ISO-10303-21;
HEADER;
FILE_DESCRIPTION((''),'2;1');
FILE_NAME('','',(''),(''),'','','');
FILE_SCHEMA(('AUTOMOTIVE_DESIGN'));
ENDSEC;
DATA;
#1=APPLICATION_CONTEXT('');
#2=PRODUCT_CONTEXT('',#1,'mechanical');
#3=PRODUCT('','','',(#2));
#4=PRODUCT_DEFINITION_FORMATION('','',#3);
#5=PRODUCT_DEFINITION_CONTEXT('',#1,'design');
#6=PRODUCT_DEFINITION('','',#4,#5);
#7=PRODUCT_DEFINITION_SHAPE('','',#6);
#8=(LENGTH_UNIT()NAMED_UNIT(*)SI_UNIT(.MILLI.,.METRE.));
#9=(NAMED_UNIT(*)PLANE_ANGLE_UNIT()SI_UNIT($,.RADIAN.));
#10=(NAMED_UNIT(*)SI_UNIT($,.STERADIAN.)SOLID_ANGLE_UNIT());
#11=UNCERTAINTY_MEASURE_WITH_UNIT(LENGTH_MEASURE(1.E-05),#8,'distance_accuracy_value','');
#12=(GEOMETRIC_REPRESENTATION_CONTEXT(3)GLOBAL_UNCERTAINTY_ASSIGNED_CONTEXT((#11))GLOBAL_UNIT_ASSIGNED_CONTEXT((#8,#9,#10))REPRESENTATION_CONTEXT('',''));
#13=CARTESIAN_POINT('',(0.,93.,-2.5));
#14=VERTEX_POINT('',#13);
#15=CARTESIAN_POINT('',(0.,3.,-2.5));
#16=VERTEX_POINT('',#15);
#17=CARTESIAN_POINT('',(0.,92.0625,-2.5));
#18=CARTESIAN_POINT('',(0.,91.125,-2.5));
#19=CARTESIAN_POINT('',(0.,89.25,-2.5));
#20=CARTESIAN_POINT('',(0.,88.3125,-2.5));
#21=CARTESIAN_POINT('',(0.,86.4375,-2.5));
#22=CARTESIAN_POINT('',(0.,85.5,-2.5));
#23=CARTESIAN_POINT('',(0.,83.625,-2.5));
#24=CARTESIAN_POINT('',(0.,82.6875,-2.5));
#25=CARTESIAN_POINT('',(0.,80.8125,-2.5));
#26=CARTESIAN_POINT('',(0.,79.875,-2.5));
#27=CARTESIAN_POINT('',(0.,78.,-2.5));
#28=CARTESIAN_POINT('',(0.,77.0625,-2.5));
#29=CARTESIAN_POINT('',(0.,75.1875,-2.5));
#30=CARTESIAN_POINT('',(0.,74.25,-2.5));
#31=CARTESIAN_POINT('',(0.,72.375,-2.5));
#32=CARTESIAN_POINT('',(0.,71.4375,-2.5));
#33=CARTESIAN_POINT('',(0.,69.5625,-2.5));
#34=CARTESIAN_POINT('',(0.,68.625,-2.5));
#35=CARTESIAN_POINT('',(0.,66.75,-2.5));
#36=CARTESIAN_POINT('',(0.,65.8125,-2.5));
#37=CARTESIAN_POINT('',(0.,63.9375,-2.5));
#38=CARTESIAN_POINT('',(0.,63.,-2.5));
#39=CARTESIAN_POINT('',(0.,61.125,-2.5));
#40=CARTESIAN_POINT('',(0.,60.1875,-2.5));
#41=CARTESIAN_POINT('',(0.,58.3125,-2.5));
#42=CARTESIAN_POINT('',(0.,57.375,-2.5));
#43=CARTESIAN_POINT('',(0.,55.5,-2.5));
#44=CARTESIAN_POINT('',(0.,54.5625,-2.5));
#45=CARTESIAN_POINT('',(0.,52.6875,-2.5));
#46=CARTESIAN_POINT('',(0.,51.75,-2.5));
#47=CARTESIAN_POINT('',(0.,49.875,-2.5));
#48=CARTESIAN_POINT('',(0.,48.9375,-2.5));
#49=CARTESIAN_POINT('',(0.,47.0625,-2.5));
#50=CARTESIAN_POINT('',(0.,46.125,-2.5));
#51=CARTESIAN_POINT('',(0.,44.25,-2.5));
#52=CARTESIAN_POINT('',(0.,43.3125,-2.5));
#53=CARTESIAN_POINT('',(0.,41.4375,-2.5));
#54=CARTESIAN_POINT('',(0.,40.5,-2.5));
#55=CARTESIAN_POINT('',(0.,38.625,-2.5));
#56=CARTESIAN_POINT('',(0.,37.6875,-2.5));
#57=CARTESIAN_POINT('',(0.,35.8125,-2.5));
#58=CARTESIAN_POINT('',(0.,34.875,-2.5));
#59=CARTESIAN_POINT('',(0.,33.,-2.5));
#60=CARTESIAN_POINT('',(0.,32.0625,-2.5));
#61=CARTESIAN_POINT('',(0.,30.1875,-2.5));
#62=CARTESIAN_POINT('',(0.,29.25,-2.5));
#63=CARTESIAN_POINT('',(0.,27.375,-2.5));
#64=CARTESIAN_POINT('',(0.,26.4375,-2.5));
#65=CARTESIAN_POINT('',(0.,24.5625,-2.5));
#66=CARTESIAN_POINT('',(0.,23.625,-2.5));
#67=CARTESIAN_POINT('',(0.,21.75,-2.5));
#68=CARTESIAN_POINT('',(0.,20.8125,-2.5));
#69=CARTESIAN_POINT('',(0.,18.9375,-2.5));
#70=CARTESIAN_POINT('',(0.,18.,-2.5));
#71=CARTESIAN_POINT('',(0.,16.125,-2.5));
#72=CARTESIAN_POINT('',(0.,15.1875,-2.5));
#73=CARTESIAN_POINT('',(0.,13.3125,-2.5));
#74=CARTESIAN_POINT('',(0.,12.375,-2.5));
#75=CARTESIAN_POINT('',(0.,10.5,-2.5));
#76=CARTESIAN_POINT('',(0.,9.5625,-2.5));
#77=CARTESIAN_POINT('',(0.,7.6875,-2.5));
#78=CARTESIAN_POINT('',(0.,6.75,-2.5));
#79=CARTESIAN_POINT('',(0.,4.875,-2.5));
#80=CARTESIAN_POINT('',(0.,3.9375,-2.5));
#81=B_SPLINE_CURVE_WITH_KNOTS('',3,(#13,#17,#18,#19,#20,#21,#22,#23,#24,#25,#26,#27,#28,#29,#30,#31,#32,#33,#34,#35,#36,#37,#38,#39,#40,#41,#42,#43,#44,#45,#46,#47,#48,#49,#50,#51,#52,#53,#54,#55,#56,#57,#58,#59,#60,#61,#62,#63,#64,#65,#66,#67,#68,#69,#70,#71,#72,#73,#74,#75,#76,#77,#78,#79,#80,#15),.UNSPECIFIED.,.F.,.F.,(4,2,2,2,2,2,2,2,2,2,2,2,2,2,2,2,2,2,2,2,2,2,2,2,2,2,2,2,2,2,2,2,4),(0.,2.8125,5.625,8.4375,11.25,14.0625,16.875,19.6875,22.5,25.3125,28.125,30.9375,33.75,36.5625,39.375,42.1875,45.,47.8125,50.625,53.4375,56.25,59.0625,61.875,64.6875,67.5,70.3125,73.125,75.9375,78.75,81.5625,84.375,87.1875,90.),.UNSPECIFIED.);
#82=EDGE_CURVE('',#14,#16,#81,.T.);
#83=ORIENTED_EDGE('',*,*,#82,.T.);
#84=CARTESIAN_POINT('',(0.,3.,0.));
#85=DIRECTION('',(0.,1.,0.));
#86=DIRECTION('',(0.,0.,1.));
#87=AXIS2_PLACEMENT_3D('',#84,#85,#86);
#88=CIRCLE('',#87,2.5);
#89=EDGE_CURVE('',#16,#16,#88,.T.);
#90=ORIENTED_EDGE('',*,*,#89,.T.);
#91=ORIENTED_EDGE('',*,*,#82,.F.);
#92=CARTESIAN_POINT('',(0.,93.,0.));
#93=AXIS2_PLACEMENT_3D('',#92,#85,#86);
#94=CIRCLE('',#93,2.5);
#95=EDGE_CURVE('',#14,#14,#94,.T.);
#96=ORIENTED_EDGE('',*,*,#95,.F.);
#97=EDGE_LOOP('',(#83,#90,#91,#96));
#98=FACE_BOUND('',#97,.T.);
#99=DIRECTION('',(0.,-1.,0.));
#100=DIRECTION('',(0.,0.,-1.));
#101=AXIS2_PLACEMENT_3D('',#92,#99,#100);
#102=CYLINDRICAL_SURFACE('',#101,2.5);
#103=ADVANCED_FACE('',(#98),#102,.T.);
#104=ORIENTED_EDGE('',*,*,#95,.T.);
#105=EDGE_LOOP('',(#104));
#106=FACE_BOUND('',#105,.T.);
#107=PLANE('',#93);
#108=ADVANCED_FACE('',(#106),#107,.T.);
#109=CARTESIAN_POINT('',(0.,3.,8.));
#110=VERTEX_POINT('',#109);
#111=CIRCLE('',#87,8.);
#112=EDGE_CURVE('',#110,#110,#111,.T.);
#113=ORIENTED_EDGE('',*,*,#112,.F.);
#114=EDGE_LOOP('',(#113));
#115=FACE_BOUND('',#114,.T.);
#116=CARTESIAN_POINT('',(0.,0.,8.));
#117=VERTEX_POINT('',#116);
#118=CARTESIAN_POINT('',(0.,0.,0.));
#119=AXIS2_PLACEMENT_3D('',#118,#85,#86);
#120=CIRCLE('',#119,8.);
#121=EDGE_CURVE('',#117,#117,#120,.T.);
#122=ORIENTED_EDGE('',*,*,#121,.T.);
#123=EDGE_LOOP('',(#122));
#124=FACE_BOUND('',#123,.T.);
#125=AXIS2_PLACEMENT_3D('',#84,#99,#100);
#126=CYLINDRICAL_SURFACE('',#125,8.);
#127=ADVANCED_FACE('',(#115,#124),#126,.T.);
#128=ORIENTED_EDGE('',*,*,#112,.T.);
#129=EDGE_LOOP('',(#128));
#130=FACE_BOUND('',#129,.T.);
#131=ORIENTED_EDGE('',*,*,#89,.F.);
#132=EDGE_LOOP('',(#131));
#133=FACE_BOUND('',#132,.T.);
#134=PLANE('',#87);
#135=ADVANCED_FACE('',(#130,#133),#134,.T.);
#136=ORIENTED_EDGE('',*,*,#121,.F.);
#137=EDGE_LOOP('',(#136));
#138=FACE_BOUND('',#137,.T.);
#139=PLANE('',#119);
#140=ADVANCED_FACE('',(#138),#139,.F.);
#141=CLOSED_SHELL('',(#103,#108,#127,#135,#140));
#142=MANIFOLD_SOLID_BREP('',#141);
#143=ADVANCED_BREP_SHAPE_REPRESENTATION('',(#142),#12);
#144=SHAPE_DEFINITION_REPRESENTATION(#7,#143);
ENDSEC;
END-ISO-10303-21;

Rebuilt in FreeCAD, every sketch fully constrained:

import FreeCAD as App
import Part
import Sketcher
from FreeCAD import Vector

doc = App.newDocument("Part")
params = doc.addObject("Spreadsheet::Sheet", "Params")
for row, (alias, value) in enumerate([
    ("sketch1_diameter", "16 mm"),
    ("pad1_length", "3 mm"),
    ("sketch2_diameter", "5 mm"),
    ("pad2_length", "90 mm"),
], start=1):
    params.set(f"A{row}", alias)
    params.set(f"B{row}", "=" + value)
    params.setAlias(f"B{row}", alias)

body = doc.addObject("PartDesign::Body", "Body")

sketch1 = doc.addObject("Sketcher::SketchObject", "Sketch")
body.addObject(sketch1)
sketch1.AttachmentSupport = (doc.XZ_Plane, [""])
sketch1.MapMode = "FlatFace"
sketch1.addGeometry(Part.Circle(Vector(0, 0, 0), Vector(0, 0, 1), 8), False)
sketch1.addConstraint(Sketcher.Constraint("Coincident", 0, 3, -1, 1))
sketch1.addConstraint(Sketcher.Constraint("Diameter", 0, 16.0))
sketch1.setExpression("Constraints[1]", "Params.sketch1_diameter")
pad1 = doc.addObject("PartDesign::Pad", "Pad")
body.addObject(pad1)
pad1.Profile = sketch1
pad1.setExpression("Length", "Params.pad1_length")
pad1.Reversed = True

sketch2 = doc.addObject("Sketcher::SketchObject", "Sketch001")
body.addObject(sketch2)
sketch2.AttachmentSupport = (doc.XZ_Plane, [""])
sketch2.MapMode = "FlatFace"
sketch2.AttachmentOffset = App.Placement(Vector(0, 0, -3), App.Rotation())
sketch2.addGeometry(Part.Circle(Vector(0, 0, 0), Vector(0, 0, 1), 2.5), False)
sketch2.addConstraint(Sketcher.Constraint("Coincident", 0, 3, -1, 1))
sketch2.addConstraint(Sketcher.Constraint("Diameter", 0, 5.0))
sketch2.setExpression("Constraints[1]", "Params.sketch2_diameter")
pad2 = doc.addObject("PartDesign::Pad", "Pad001")
body.addObject(pad2)
pad2.Profile = sketch2
pad2.setExpression("Length", "Params.pad2_length")
pad2.Reversed = True

doc.recompute()
